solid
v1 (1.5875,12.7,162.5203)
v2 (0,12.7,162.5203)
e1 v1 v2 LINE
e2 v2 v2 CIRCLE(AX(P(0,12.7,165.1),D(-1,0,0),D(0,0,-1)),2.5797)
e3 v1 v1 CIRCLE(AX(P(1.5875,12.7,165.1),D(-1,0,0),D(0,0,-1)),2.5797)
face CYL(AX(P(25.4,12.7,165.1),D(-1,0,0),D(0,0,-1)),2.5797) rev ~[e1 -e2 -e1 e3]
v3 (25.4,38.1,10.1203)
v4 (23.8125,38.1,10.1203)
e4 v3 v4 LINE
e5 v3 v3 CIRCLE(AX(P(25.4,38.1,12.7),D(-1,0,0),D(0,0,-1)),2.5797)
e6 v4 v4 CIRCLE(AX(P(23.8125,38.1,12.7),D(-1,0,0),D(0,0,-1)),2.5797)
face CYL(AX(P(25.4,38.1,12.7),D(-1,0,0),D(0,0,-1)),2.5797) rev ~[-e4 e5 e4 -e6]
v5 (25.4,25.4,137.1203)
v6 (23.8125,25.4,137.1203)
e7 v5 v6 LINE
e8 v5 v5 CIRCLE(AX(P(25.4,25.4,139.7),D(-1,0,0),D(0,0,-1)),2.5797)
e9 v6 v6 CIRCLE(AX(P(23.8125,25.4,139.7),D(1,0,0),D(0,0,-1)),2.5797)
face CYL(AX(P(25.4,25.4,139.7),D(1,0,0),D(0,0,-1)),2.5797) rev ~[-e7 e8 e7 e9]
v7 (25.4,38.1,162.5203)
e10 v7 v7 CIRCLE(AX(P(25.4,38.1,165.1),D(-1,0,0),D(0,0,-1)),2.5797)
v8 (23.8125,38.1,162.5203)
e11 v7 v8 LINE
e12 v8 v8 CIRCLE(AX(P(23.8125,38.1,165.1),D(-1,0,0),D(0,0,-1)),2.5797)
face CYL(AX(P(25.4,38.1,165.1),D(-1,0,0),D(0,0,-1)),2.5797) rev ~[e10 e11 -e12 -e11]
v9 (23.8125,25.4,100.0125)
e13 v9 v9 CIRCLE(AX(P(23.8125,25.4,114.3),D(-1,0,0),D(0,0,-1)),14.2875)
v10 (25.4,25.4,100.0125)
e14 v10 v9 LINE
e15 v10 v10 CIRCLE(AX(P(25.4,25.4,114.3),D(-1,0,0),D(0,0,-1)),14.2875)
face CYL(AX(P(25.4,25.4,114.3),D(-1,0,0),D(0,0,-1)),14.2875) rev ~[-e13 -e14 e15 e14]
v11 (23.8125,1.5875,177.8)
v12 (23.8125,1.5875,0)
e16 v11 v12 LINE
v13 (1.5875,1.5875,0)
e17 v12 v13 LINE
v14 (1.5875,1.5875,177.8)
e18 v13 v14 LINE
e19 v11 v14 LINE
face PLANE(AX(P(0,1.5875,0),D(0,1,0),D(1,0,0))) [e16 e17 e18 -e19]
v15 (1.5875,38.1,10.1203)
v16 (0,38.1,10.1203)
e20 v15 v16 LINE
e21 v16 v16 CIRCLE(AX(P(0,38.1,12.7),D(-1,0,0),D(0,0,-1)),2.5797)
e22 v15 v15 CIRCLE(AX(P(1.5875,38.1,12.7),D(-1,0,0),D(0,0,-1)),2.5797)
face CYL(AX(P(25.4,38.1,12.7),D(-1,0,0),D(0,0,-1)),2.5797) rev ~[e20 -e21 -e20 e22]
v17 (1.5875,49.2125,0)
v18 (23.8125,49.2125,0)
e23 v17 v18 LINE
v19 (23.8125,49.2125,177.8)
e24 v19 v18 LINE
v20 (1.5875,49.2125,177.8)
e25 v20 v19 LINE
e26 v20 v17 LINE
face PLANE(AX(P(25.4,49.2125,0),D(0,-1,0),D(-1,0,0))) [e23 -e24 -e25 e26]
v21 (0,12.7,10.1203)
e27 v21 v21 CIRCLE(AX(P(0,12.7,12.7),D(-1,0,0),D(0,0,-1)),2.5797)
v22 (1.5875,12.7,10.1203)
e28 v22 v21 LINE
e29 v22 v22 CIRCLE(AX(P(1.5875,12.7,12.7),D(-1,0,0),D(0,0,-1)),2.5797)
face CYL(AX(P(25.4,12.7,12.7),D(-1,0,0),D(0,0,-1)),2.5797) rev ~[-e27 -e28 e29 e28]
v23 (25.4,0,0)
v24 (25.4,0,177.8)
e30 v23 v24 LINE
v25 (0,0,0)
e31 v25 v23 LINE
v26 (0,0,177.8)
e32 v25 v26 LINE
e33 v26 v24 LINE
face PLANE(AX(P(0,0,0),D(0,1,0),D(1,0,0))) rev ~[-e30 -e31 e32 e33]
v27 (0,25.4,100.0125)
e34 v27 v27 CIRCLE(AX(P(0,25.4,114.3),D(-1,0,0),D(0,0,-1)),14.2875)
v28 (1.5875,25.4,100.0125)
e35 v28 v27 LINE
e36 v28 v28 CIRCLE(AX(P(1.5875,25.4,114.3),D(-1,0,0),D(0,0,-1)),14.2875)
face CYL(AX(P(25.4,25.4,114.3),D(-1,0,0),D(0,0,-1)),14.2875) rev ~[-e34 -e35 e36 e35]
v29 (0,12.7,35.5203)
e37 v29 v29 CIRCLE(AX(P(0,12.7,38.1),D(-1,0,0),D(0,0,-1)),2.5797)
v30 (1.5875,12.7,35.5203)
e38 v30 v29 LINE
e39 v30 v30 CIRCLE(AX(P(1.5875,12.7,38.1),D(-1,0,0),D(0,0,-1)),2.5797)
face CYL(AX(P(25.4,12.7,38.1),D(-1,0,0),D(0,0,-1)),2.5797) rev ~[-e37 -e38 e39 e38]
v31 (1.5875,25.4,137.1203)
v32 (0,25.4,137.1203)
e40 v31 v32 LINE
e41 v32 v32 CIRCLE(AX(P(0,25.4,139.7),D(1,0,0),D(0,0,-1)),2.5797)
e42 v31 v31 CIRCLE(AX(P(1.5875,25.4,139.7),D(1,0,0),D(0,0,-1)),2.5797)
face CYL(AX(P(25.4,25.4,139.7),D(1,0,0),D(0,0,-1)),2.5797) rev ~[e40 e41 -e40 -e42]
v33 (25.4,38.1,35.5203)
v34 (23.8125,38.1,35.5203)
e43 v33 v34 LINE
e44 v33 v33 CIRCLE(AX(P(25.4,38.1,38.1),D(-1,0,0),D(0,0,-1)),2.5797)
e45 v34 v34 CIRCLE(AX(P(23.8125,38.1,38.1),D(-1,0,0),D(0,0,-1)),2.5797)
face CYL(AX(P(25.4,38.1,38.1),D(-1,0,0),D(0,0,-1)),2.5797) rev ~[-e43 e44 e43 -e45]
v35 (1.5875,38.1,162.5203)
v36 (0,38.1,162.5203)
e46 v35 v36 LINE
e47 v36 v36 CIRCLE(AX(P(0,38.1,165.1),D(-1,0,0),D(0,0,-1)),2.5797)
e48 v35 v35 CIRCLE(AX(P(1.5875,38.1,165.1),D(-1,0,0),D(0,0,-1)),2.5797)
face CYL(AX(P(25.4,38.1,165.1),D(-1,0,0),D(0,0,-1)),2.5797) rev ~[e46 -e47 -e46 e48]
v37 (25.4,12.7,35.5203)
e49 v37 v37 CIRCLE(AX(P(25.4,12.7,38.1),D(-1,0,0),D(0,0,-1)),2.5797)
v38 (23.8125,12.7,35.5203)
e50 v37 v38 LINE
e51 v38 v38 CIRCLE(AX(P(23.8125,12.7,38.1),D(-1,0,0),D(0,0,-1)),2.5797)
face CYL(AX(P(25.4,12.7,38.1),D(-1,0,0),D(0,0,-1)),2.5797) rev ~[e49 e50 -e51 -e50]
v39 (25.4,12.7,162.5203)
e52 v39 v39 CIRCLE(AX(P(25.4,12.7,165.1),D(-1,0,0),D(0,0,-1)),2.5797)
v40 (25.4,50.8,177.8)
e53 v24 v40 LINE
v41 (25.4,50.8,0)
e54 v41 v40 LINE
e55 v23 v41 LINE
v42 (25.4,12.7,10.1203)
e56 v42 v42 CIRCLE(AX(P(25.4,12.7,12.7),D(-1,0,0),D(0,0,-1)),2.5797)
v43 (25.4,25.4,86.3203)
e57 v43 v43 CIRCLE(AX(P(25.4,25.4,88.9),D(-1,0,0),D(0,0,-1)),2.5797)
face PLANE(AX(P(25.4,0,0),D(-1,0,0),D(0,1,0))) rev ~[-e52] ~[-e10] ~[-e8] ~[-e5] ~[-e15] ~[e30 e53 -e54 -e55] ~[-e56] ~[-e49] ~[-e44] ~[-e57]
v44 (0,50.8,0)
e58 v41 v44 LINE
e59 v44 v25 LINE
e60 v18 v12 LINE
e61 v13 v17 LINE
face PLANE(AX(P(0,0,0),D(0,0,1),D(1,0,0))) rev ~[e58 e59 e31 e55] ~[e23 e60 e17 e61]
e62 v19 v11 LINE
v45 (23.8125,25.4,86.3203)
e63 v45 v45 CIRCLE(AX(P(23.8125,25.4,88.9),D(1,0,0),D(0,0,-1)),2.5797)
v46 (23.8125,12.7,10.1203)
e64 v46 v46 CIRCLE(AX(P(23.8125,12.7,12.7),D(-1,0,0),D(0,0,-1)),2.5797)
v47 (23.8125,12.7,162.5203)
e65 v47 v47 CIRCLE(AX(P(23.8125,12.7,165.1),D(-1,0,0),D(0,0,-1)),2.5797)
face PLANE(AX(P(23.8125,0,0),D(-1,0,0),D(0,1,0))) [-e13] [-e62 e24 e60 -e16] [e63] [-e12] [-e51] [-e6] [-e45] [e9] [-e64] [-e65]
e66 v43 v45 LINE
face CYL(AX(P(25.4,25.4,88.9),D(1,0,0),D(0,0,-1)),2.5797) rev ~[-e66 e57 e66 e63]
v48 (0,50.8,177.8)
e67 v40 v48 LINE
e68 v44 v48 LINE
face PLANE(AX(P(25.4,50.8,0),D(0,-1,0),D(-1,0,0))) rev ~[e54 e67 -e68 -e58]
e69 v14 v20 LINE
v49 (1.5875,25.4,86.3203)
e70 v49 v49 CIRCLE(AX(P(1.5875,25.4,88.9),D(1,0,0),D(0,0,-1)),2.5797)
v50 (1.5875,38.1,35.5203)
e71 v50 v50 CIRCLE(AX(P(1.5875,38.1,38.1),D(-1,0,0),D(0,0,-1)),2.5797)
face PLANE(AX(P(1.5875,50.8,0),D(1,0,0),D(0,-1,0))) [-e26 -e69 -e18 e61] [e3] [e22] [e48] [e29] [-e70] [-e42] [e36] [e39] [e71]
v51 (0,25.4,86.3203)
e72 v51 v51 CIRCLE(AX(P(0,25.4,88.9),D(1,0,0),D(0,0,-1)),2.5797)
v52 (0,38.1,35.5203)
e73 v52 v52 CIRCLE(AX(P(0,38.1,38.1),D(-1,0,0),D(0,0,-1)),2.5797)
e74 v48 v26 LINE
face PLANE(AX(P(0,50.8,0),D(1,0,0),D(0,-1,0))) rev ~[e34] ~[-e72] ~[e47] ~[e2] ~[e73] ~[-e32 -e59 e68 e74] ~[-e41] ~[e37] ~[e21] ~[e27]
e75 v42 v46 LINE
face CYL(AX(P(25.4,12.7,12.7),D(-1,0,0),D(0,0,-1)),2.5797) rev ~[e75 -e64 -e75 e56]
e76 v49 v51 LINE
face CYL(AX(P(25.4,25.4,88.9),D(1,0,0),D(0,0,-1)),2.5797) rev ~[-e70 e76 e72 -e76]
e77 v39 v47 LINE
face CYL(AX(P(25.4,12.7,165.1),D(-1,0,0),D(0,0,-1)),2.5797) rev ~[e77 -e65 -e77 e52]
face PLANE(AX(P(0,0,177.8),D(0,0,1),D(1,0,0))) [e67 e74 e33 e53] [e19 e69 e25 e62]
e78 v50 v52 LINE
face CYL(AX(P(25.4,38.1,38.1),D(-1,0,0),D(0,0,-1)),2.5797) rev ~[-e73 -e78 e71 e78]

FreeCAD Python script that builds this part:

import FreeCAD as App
import Part
import Sketcher

V = App.Vector
Q = App.Units.Quantity


def faces_at(feature, points):
    """Names of the faces that lie closest to the given points."""
    faces = feature.Shape.Faces
    near = lambda p: min(range(len(faces)), key=lambda i: faces[i].distToShape(Part.Vertex(*p))[0])
    return sorted({f"Face{near(p) + 1}" for p in points})


def add_polygon(sketch, points):
    """Adds a closed chain of lines whose ends are joined by coincident constraints."""
    first, n = sketch.GeometryCount, len(points)
    for a, b in zip(points, points[1:] + points[:1]):
        sketch.addGeometry(Part.LineSegment(App.Vector(*a, 0), App.Vector(*b, 0)), False)
    for i in range(n):
        sketch.addConstraint(Sketcher.Constraint("Coincident", first + i, 2, first + (i + 1) % n, 1))

doc = App.newDocument("Part")
params = doc.addObject("Spreadsheet::Sheet", "Params")
for row, (alias, value) in enumerate([
    ("sketch1_width", "1 in"),
    ("sketch1_height", "2 in"),
    ("pad1_length", "7 in"),
    ("thickness_wall", "0.0625 in"),
    ("sketch2_diameter", "1.125 in"),
    ("hole_diameter", "1.125 in"),
    ("sketch3_diameter", "0.203126 in"),
    ("pocket1_length", "7 in"),
    ("sketch4_diameter", "0.203126 in"),
    ("hole2_diameter", "0.203126 in"),
    ("sketch5_diameter", "0.203126 in"),
    ("hole3_diameter", "0.203126 in"),
    ("sketch6_diameter", "0.203126 in"),
    ("hole4_diameter", "0.203126 in"),
    ("sketch7_diameter", "0.203126 in"),
    ("hole5_diameter", "0.203126 in"),
    ("sketch8_diameter", "0.203126 in"),
    ("hole6_diameter", "0.203126 in"),
    ("sketch9_diameter", "0.203126 in"),
    ("hole7_diameter", "0.203126 in"),
], start=1):
    params.set(f"A{row}", alias)
    params.set(f"B{row}", "=" + value)
    params.setAlias(f"B{row}", alias)

body = doc.addObject("PartDesign::Body", "Body")

sketch1 = body.newObject("Sketcher::SketchObject", "Sketch")
sketch1.AttachmentSupport = (doc.getObject("XY_Plane"), [""])
sketch1.MapMode = "FlatFace"
add_polygon(sketch1, [(0, 51), (0, 0), (25, 0), (25, 51)])
sketch1.addConstraint([
    Sketcher.Constraint("Vertical", 0),
    Sketcher.Constraint("Horizontal", 1),
    Sketcher.Constraint("Vertical", 2),
    Sketcher.Constraint("Horizontal", 3),
    Sketcher.Constraint("Coincident", 0, 2, -1, 1),
    Sketcher.Constraint("DistanceX", 1, 1, 1, 2, Q("1 in")),
    Sketcher.Constraint("DistanceY", 0, 2, 0, 1, Q("2 in")),
])
sketch1.setExpression("Constraints[9]", "Params.sketch1_width")
sketch1.setExpression("Constraints[10]", "Params.sketch1_height")
pad1 = body.newObject("PartDesign::Pad", "Pad")
pad1.Profile = sketch1
pad1.setExpression("Length", "Params.pad1_length")
doc.recompute()

thickness = body.newObject("PartDesign::Thickness", "Thickness")
thickness.Base = (pad1, faces_at(pad1, [(8.467, 16.933, 0), (8.467, 16.933, 177.8)]))
thickness.setExpression("Value", "Params.thickness_wall")
thickness.Reversed = True
thickness.Join = "Intersection"

sketch2 = body.newObject("Sketcher::SketchObject", "Sketch001")
sketch2.AttachmentSupport = (doc.getObject("YZ_Plane"), [""])
sketch2.MapMode = "FlatFace"
sketch2.AttachmentOffset = App.Placement(V(0, 0, 1 * 25.4), App.Rotation())
sketch2.addGeometry(Part.Circle(V(25, 114, 0), V(0, 0, 1), 14), False)
sketch2.addConstraint([
    Sketcher.Constraint("Diameter", 0, Q("1.125 in")),
    Sketcher.Constraint("DistanceX", -1, 1, 0, 3, Q("1 in")),
    Sketcher.Constraint("DistanceY", -1, 1, 0, 3, Q("4.5 in")),
])
sketch2.setExpression("Constraints[0]", "Params.sketch2_diameter")
doc.recompute()
hole = body.newObject("PartDesign::Hole", "Hole")
hole.Profile = sketch2
hole.ThreadType = "None"
hole.setExpression("Diameter", "Params.hole_diameter")
hole.DepthType = "ThroughAll"

sketch3 = body.newObject("Sketcher::SketchObject", "Sketch002")
sketch3.AttachmentSupport = (doc.getObject("YZ_Plane"), [""])
sketch3.MapMode = "FlatFace"
sketch3.AttachmentOffset = App.Placement(V(0, 0, 1 * 25.4), App.Rotation())
sketch3.addGeometry([
    Part.Circle(V(25.4, 139.7, 0), V(0, 0, 1), 2.6),
    Part.Circle(V(25.4, 88.9, 0), V(0, 0, 1), 2.6),
], False)
sketch3.addConstraint([
    Sketcher.Constraint("Equal", 0, 1),
    Sketcher.Constraint("Vertical", 0, 3, 1, 3),
    Sketcher.Constraint("Diameter", 0, Q("0.203126 in")),
    Sketcher.Constraint("DistanceX", -1, 1, 0, 3, Q("1 in")),
    Sketcher.Constraint("DistanceY", 1, 3, 0, 3, Q("2 in")),
    Sketcher.Constraint("DistanceY", -1, 1, 0, 3, Q("5.5 in")),
])
sketch3.setExpression("Constraints[2]", "Params.sketch3_diameter")
pocket1 = body.newObject("PartDesign::Pocket", "Pocket")
pocket1.Profile = sketch3
pocket1.setExpression("Length", "Params.pocket1_length")

sketch4 = body.newObject("Sketcher::SketchObject", "Sketch003")
sketch4.AttachmentSupport = (doc.getObject("YZ_Plane"), [""])
sketch4.MapMode = "FlatFace"
sketch4.AttachmentOffset = App.Placement(V(0, 0, 1 * 25.4), App.Rotation())
sketch4.addGeometry(Part.Circle(V(38.1, 165.1, 0), V(0, 0, 1), 2.6), False)
sketch4.addConstraint([
    Sketcher.Constraint("Diameter", 0, Q("0.203126 in")),
    Sketcher.Constraint("DistanceX", -1, 1, 0, 3, Q("1.5 in")),
    Sketcher.Constraint("DistanceY", -1, 1, 0, 3, Q("6.5 in")),
])
sketch4.setExpression("Constraints[0]", "Params.sketch4_diameter")
doc.recompute()
hole2 = body.newObject("PartDesign::Hole", "Hole001")
hole2.Profile = sketch4
hole2.ThreadType = "None"
hole2.setExpression("Diameter", "Params.hole2_diameter")
hole2.DepthType = "ThroughAll"

sketch5 = body.newObject("Sketcher::SketchObject", "Sketch004")
sketch5.AttachmentSupport = (doc.getObject("YZ_Plane"), [""])
sketch5.MapMode = "FlatFace"
sketch5.AttachmentOffset = App.Placement(V(0, 0, 1 * 25.4), App.Rotation())
sketch5.addGeometry(Part.Circle(V(12.7, 165.1, 0), V(0, 0, 1), 2.6), False)
sketch5.addConstraint([
    Sketcher.Constraint("Diameter", 0, Q("0.203126 in")),
    Sketcher.Constraint("DistanceX", -1, 1, 0, 3, Q("0.5 in")),
    Sketcher.Constraint("DistanceY", -1, 1, 0, 3, Q("6.5 in")),
])
sketch5.setExpression("Constraints[0]", "Params.sketch5_diameter")
doc.recompute()
hole3 = body.newObject("PartDesign::Hole", "Hole002")
hole3.Profile = sketch5
hole3.ThreadType = "None"
hole3.setExpression("Diameter", "Params.hole3_diameter")
hole3.DepthType = "ThroughAll"

sketch6 = body.newObject("Sketcher::SketchObject", "Sketch005")
sketch6.AttachmentSupport = (doc.getObject("YZ_Plane"), [""])
sketch6.MapMode = "FlatFace"
sketch6.AttachmentOffset = App.Placement(V(0, 0, 1 * 25.4), App.Rotation())
sketch6.addGeometry(Part.Circle(V(38.1, 12.7, 0), V(0, 0, 1), 2.6), False)
sketch6.addConstraint([
    Sketcher.Constraint("Diameter", 0, Q("0.203126 in")),
    Sketcher.Constraint("DistanceX", -1, 1, 0, 3, Q("1.5 in")),
    Sketcher.Constraint("DistanceY", -1, 1, 0, 3, Q("0.5 in")),
])
sketch6.setExpression("Constraints[0]", "Params.sketch6_diameter")
doc.recompute()
hole4 = body.newObject("PartDesign::Hole", "Hole003")
hole4.Profile = sketch6
hole4.ThreadType = "None"
hole4.setExpression("Diameter", "Params.hole4_diameter")
hole4.DepthType = "ThroughAll"

sketch7 = body.newObject("Sketcher::SketchObject", "Sketch006")
sketch7.AttachmentSupport = (doc.getObject("YZ_Plane"), [""])
sketch7.MapMode = "FlatFace"
sketch7.AttachmentOffset = App.Placement(V(0, 0, 1 * 25.4), App.Rotation())
sketch7.addGeometry(Part.Circle(V(38.1, 38.1, 0), V(0, 0, 1), 2.6), False)
sketch7.addConstraint([
    Sketcher.Constraint("Diameter", 0, Q("0.203126 in")),
    Sketcher.Constraint("DistanceX", -1, 1, 0, 3, Q("1.5 in")),
    Sketcher.Constraint("DistanceY", -1, 1, 0, 3, Q("1.5 in")),
])
sketch7.setExpression("Constraints[0]", "Params.sketch7_diameter")
doc.recompute()
hole5 = body.newObject("PartDesign::Hole", "Hole004")
hole5.Profile = sketch7
hole5.ThreadType = "None"
hole5.setExpression("Diameter", "Params.hole5_diameter")
hole5.DepthType = "ThroughAll"

sketch8 = body.newObject("Sketcher::SketchObject", "Sketch007")
sketch8.AttachmentSupport = (doc.getObject("YZ_Plane"), [""])
sketch8.MapMode = "FlatFace"
sketch8.AttachmentOffset = App.Placement(V(0, 0, 1 * 25.4), App.Rotation())
sketch8.addGeometry(Part.Circle(V(12.7, 38.1, 0), V(0, 0, 1), 2.6), False)
sketch8.addConstraint([
    Sketcher.Constraint("Diameter", 0, Q("0.203126 in")),
    Sketcher.Constraint("DistanceX", -1, 1, 0, 3, Q("0.5 in")),
    Sketcher.Constraint("DistanceY", -1, 1, 0, 3, Q("1.5 in")),
])
sketch8.setExpression("Constraints[0]", "Params.sketch8_diameter")
doc.recompute()
hole6 = body.newObject("PartDesign::Hole", "Hole005")
hole6.Profile = sketch8
hole6.ThreadType = "None"
hole6.setExpression("Diameter", "Params.hole6_diameter")
hole6.DepthType = "ThroughAll"

sketch9 = body.newObject("Sketcher::SketchObject", "Sketch008")
sketch9.AttachmentSupport = (doc.getObject("YZ_Plane"), [""])
sketch9.MapMode = "FlatFace"
sketch9.AttachmentOffset = App.Placement(V(0, 0, 1 * 25.4), App.Rotation())
sketch9.addGeometry(Part.Circle(V(12.7, 12.7, 0), V(0, 0, 1), 2.6), False)
sketch9.addConstraint([
    Sketcher.Constraint("Diameter", 0, Q("0.203126 in")),
    Sketcher.Constraint("DistanceX", -1, 1, 0, 3, Q("0.5 in")),
    Sketcher.Constraint("DistanceY", -1, 1, 0, 3, Q("0.5 in")),
])
sketch9.setExpression("Constraints[0]", "Params.sketch9_diameter")
doc.recompute()
hole7 = body.newObject("PartDesign::Hole", "Hole006")
hole7.Profile = sketch9
hole7.ThreadType = "None"
hole7.setExpression("Diameter", "Params.hole7_diameter")
hole7.DepthType = "ThroughAll"

doc.recompute()
